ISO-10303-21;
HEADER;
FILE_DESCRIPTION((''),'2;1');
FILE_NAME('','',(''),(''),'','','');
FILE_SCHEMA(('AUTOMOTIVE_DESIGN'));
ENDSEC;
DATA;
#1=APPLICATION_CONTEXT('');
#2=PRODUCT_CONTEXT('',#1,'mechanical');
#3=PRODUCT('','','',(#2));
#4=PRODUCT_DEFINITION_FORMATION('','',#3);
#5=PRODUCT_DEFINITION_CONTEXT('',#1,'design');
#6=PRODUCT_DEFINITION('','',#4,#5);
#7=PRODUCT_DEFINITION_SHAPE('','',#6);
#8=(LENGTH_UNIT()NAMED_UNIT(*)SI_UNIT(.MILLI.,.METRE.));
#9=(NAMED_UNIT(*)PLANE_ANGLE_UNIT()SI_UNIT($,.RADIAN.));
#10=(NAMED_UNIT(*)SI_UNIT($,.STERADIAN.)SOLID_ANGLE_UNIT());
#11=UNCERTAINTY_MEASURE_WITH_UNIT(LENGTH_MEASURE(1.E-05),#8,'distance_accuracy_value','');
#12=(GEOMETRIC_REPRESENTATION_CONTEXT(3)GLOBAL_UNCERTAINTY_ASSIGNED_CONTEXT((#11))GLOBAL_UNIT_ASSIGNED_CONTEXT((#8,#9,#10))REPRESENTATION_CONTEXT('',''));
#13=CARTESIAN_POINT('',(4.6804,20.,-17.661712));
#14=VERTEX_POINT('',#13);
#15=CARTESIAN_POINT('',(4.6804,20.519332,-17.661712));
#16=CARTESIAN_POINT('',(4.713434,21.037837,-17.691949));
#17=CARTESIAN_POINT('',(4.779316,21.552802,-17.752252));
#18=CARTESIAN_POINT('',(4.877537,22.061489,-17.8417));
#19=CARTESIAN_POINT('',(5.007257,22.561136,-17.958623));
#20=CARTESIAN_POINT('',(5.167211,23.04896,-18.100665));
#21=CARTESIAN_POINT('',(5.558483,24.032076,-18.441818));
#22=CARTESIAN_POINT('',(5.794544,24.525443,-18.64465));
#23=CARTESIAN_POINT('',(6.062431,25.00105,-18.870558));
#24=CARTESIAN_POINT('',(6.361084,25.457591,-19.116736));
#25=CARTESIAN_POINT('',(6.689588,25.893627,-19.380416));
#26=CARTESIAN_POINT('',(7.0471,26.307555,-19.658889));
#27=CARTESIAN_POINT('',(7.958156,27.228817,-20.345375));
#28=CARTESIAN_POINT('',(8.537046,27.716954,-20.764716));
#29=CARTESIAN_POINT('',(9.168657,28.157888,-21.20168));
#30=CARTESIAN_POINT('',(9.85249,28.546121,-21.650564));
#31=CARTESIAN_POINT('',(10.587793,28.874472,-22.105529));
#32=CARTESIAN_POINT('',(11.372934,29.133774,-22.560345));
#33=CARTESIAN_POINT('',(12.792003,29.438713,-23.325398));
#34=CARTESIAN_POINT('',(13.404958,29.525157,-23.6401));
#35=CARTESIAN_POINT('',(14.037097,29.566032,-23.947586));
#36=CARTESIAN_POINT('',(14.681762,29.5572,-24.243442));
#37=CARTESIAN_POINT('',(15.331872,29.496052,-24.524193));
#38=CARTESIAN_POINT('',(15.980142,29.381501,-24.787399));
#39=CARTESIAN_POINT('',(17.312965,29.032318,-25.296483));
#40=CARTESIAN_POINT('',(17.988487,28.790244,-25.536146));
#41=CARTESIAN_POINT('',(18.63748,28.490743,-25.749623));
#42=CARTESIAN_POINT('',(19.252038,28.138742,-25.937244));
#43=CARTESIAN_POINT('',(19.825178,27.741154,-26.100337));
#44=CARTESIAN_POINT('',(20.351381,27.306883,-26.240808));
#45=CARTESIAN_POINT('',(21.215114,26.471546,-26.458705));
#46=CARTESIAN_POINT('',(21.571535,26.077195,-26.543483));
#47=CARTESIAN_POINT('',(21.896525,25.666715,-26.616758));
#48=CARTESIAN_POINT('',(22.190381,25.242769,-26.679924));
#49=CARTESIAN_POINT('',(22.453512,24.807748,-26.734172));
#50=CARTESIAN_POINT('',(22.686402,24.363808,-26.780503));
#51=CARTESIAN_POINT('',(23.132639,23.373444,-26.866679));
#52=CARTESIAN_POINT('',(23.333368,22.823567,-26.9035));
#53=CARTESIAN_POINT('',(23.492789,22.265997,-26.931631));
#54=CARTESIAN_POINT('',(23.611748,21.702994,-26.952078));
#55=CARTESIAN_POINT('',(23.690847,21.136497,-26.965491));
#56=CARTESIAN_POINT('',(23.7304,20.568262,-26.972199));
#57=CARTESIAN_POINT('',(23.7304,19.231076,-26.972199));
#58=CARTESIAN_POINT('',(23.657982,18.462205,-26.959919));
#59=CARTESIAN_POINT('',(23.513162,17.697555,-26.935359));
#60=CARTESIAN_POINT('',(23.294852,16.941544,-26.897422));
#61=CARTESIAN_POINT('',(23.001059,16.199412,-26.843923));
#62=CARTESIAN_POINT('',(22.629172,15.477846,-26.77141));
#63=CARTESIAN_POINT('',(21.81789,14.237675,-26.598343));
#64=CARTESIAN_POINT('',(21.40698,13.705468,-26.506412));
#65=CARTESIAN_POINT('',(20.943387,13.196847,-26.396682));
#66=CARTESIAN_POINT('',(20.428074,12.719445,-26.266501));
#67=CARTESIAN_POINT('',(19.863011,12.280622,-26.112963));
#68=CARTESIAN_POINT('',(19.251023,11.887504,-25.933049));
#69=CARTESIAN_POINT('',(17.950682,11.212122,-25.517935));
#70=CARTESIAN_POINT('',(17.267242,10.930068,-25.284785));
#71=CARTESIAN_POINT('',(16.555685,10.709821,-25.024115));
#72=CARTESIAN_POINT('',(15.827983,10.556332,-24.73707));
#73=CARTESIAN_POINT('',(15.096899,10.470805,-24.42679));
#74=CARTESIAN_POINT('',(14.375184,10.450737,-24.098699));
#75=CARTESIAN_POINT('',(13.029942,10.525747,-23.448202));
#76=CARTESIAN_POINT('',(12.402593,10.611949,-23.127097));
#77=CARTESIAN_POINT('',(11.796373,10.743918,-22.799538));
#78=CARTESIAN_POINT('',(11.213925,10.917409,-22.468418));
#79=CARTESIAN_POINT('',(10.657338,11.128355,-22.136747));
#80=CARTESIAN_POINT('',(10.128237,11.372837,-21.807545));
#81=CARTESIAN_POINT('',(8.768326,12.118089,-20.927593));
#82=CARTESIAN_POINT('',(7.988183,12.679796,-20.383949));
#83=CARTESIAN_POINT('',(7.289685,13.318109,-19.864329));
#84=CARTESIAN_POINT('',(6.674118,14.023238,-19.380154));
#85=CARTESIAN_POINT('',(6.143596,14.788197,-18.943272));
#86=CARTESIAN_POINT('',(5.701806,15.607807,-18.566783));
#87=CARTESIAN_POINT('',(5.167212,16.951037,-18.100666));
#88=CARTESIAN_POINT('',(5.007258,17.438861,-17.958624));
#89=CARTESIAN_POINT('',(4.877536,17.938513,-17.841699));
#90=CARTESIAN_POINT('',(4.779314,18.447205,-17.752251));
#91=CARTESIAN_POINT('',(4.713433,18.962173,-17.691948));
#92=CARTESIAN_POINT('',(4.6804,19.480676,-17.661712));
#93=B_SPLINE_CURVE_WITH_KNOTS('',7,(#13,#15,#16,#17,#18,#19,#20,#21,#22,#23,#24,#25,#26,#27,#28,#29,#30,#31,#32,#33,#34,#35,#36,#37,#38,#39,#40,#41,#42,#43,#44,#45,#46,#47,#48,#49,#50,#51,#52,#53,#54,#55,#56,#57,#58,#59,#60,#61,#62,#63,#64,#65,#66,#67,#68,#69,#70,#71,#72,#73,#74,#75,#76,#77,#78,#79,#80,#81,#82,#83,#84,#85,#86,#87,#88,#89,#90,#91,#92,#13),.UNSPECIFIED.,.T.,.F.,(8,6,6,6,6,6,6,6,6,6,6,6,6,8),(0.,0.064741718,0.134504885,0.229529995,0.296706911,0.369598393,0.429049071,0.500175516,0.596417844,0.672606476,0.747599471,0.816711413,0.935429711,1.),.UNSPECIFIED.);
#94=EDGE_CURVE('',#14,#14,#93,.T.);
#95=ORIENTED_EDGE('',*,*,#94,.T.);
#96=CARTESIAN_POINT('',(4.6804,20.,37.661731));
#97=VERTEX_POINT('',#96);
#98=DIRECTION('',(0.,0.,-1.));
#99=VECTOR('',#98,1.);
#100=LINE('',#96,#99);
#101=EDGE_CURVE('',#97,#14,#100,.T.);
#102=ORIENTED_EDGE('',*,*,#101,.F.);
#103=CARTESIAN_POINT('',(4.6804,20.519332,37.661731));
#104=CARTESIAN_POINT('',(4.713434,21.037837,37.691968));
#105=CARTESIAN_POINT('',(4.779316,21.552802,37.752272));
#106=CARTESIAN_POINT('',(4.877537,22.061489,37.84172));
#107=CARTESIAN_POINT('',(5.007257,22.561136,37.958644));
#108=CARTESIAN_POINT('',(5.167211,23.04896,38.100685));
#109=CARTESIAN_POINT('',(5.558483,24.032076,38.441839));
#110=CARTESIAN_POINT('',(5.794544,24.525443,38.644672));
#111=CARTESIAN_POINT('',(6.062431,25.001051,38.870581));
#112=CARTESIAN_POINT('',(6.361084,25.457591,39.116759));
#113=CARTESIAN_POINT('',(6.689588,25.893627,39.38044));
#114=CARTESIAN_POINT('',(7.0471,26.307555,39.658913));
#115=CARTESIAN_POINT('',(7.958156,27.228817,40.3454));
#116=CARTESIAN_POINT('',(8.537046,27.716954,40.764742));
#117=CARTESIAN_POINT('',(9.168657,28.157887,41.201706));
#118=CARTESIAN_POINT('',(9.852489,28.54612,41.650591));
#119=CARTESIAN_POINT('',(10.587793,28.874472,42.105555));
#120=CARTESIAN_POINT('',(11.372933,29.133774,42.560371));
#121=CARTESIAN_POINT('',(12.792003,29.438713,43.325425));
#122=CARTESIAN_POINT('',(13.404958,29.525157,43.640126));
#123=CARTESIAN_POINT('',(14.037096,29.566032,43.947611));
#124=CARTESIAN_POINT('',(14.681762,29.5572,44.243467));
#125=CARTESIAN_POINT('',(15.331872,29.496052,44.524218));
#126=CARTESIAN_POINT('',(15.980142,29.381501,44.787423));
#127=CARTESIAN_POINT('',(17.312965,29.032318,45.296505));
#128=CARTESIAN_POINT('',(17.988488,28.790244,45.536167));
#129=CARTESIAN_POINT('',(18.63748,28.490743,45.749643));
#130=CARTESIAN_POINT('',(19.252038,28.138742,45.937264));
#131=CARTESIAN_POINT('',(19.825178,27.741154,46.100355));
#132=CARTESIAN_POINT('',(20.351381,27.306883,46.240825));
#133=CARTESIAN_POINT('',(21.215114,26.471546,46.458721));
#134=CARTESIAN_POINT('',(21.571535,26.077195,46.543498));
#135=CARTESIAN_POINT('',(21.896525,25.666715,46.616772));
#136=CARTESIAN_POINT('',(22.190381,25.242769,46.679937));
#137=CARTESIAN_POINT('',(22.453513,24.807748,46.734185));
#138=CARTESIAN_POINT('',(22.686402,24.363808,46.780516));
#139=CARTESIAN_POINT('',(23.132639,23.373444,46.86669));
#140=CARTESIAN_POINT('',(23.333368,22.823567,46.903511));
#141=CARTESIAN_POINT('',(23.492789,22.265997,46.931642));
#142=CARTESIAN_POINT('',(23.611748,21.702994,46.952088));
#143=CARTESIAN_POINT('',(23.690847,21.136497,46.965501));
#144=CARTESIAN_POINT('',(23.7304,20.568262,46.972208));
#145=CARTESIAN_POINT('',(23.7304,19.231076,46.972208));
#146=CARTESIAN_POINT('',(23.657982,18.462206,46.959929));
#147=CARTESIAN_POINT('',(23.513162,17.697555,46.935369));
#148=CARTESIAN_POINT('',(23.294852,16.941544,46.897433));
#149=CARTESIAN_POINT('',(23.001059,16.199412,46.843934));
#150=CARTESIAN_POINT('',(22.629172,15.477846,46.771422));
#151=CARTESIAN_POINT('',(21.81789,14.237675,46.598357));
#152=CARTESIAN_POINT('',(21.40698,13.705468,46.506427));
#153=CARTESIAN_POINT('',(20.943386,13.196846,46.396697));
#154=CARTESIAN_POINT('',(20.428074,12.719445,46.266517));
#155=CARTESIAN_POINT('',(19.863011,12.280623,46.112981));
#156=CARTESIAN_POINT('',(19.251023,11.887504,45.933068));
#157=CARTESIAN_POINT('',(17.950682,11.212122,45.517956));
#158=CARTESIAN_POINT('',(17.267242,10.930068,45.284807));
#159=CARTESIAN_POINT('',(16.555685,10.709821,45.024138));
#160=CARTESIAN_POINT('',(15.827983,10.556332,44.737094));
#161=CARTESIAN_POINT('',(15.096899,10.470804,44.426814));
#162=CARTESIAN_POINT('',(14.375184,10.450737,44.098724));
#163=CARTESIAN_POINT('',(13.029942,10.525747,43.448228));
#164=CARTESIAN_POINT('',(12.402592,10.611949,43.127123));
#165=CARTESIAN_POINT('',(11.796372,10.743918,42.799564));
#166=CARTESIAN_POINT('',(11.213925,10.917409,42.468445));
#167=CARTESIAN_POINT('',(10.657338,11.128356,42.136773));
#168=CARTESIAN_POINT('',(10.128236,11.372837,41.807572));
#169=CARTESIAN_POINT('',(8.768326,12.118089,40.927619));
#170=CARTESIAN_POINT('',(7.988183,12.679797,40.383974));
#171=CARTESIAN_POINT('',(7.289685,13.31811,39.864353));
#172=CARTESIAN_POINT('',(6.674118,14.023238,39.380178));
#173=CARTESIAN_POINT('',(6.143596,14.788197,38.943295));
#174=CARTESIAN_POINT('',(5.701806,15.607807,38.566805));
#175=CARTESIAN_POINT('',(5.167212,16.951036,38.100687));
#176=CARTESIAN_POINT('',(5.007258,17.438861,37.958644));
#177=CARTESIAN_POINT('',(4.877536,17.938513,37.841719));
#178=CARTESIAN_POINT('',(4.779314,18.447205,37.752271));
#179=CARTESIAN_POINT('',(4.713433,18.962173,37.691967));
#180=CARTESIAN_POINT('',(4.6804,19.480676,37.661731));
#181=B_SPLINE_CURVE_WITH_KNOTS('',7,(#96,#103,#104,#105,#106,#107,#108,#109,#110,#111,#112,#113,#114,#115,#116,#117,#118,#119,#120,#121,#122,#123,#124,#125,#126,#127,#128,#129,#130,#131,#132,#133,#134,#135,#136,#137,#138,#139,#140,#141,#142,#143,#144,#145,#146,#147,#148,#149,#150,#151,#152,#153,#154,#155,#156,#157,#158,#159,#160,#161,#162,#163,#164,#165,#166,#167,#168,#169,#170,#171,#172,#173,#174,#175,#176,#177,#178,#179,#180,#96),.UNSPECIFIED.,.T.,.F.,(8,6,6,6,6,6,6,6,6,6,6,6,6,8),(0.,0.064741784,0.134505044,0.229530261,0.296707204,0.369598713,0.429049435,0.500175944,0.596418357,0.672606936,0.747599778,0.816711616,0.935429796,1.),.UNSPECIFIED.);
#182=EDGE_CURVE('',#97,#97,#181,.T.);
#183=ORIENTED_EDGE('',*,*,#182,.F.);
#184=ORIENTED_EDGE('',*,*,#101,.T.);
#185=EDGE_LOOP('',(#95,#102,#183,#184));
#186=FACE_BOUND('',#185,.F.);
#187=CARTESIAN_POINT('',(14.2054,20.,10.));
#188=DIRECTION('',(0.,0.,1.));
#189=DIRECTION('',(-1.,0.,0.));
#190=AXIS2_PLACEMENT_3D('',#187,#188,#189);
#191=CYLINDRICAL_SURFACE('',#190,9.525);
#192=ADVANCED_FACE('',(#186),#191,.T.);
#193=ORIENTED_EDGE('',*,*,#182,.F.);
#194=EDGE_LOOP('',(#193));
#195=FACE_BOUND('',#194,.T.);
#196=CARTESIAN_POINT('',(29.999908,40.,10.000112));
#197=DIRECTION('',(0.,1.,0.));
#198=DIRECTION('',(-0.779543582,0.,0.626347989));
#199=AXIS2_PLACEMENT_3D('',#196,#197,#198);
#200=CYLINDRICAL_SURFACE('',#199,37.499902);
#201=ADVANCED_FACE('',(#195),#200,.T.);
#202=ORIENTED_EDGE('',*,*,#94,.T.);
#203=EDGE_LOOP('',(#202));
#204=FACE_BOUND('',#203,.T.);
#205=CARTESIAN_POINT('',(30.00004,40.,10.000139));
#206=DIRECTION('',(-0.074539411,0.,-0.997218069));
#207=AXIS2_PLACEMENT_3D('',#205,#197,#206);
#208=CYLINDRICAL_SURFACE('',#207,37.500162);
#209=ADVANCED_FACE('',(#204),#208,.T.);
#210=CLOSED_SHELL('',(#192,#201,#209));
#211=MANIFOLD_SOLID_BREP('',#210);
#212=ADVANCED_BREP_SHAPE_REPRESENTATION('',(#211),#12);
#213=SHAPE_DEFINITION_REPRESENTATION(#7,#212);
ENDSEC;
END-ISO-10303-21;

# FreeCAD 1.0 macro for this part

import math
import FreeCAD as App
import Part
import Sketcher

V = App.Vector
Q = App.Units.Quantity

doc = App.newDocument("Part")
body = doc.addObject("PartDesign::Body", "Body")

# Sketch on XY plane
sketch1 = body.newObject("Sketcher::SketchObject", "Sketch")
sketch1.AttachmentSupport = (doc.getObject("XY_Plane"), [""])
sketch1.MapMode = "FlatFace"
sketch1.AttachmentOffset = App.Placement(V(0, 0, 0.3937008 * 25.4), App.Rotation())
sketch1.addGeometry(Part.Circle(V(14.2054, 20, 0), V(0, 0, 1), 9.525), False)
sketch1.addConstraint([
    Sketcher.Constraint("Diameter", 0, Q("0.75 in")),
    Sketcher.Constraint("DistanceY", -1, 1, 0, 3, Q("0.7874 in")),
    Sketcher.Constraint("DistanceX", -1, 1, 0, 3, Q("14.2054 mm")),
])
pad1 = body.newObject("PartDesign::Pad", "Pad")
pad1.Profile = sketch1
pad1.Length = Q("3.1496063 in")
pad1.Midplane = True

# Sketch on XZ plane
sketch2 = body.newObject("Sketcher::SketchObject", "Sketch001")
sketch2.AttachmentSupport = (doc.getObject("XZ_Plane"), [""])
sketch2.MapMode = "FlatFace"
sketch2.AttachmentOffset = App.Placement(V(0, 0, -1.5748031 * 25.4), App.Rotation())
sketch2.addGeometry([
    Part.ArcOfCircle(Part.Circle(V(30, 10, 0), V(0, 0, 1), 37.500083), math.radians(-141.21876), math.radians(-94.274713)),  # 0
    Part.LineSegment(V(27.2048, -27.3957, 0), V(27.2048, -56.6217, 0)),  # 1
    Part.LineSegment(V(27.2048, -56.6217, 0), V(0.7671, -56.6217, 0)),  # 2
    Part.LineSegment(V(0.7671, -56.6217, 0), V(0.7671, -13.4881, 0)),  # 3
    Part.LineSegment(V(27.2048, 79.2229, 0), V(27.2048, 47.3957, 0)),  # 4
    Part.ArcOfCircle(Part.Circle(V(30, 10, 0), V(0, 0, 1), 37.499922), math.radians(94.274713), math.radians(141.21876)),  # 5
    Part.LineSegment(V(0.7671, 33.4881, 0), V(0.7671, 79.2229, 0)),  # 6
    Part.LineSegment(V(0.7671, 79.2229, 0), V(27.2048, 79.2229, 0)),  # 7
], False)
sketch2.addConstraint([
    Sketcher.Constraint("Coincident", 0, 2, 1, 1),
    Sketcher.Constraint("Coincident", 1, 2, 2, 1),
    Sketcher.Constraint("Coincident", 2, 2, 3, 1),
    Sketcher.Constraint("Coincident", 3, 2, 0, 1),
    Sketcher.Constraint("Coincident", 4, 2, 5, 1),
    Sketcher.Constraint("Coincident", 5, 2, 6, 1),
    Sketcher.Constraint("Coincident", 6, 2, 7, 1),
    Sketcher.Constraint("Coincident", 7, 2, 4, 1),
    Sketcher.Constraint("Vertical", 1),
    Sketcher.Constraint("Horizontal", 2),
    Sketcher.Constraint("Vertical", 3),
    Sketcher.Constraint("Vertical", 4),
    Sketcher.Constraint("Vertical", 6),
    Sketcher.Constraint("Horizontal", 7),
    Sketcher.Constraint("Coincident", 5, 3, 0, 3),
    Sketcher.Constraint("Equal", 0, 5),
    Sketcher.Constraint("Vertical", 1, 2, 4, 2),
    Sketcher.Constraint("Vertical", 3, 2, 5, 2),
    Sketcher.Constraint("Radius", 0, Q("37.5 mm")),
    Sketcher.Constraint("DistanceY", -1, 1, 6, 2, Q("3.119 in")),
    Sketcher.Constraint("DistanceY", 3, 2, 4, 2, Q("2.397 in")),
    Sketcher.Constraint("DistanceX", 2, 2, 2, 1, Q("26.4377 mm")),
    Sketcher.Constraint("DistanceY", 1, 2, 1, 1, Q("29.226 mm")),
    Sketcher.Constraint("DistanceY", 4, 2, 4, 1, Q("31.8272 mm")),
    Sketcher.Constraint("DistanceX", -1, 1, 0, 3, Q("1.1811 in")),
])
pocket1 = body.newObject("PartDesign::Pocket", "Pocket")
pocket1.Profile = sketch2
pocket1.Length = Q("1.1811024 in")
pocket1.Reversed = True

doc.recompute()
